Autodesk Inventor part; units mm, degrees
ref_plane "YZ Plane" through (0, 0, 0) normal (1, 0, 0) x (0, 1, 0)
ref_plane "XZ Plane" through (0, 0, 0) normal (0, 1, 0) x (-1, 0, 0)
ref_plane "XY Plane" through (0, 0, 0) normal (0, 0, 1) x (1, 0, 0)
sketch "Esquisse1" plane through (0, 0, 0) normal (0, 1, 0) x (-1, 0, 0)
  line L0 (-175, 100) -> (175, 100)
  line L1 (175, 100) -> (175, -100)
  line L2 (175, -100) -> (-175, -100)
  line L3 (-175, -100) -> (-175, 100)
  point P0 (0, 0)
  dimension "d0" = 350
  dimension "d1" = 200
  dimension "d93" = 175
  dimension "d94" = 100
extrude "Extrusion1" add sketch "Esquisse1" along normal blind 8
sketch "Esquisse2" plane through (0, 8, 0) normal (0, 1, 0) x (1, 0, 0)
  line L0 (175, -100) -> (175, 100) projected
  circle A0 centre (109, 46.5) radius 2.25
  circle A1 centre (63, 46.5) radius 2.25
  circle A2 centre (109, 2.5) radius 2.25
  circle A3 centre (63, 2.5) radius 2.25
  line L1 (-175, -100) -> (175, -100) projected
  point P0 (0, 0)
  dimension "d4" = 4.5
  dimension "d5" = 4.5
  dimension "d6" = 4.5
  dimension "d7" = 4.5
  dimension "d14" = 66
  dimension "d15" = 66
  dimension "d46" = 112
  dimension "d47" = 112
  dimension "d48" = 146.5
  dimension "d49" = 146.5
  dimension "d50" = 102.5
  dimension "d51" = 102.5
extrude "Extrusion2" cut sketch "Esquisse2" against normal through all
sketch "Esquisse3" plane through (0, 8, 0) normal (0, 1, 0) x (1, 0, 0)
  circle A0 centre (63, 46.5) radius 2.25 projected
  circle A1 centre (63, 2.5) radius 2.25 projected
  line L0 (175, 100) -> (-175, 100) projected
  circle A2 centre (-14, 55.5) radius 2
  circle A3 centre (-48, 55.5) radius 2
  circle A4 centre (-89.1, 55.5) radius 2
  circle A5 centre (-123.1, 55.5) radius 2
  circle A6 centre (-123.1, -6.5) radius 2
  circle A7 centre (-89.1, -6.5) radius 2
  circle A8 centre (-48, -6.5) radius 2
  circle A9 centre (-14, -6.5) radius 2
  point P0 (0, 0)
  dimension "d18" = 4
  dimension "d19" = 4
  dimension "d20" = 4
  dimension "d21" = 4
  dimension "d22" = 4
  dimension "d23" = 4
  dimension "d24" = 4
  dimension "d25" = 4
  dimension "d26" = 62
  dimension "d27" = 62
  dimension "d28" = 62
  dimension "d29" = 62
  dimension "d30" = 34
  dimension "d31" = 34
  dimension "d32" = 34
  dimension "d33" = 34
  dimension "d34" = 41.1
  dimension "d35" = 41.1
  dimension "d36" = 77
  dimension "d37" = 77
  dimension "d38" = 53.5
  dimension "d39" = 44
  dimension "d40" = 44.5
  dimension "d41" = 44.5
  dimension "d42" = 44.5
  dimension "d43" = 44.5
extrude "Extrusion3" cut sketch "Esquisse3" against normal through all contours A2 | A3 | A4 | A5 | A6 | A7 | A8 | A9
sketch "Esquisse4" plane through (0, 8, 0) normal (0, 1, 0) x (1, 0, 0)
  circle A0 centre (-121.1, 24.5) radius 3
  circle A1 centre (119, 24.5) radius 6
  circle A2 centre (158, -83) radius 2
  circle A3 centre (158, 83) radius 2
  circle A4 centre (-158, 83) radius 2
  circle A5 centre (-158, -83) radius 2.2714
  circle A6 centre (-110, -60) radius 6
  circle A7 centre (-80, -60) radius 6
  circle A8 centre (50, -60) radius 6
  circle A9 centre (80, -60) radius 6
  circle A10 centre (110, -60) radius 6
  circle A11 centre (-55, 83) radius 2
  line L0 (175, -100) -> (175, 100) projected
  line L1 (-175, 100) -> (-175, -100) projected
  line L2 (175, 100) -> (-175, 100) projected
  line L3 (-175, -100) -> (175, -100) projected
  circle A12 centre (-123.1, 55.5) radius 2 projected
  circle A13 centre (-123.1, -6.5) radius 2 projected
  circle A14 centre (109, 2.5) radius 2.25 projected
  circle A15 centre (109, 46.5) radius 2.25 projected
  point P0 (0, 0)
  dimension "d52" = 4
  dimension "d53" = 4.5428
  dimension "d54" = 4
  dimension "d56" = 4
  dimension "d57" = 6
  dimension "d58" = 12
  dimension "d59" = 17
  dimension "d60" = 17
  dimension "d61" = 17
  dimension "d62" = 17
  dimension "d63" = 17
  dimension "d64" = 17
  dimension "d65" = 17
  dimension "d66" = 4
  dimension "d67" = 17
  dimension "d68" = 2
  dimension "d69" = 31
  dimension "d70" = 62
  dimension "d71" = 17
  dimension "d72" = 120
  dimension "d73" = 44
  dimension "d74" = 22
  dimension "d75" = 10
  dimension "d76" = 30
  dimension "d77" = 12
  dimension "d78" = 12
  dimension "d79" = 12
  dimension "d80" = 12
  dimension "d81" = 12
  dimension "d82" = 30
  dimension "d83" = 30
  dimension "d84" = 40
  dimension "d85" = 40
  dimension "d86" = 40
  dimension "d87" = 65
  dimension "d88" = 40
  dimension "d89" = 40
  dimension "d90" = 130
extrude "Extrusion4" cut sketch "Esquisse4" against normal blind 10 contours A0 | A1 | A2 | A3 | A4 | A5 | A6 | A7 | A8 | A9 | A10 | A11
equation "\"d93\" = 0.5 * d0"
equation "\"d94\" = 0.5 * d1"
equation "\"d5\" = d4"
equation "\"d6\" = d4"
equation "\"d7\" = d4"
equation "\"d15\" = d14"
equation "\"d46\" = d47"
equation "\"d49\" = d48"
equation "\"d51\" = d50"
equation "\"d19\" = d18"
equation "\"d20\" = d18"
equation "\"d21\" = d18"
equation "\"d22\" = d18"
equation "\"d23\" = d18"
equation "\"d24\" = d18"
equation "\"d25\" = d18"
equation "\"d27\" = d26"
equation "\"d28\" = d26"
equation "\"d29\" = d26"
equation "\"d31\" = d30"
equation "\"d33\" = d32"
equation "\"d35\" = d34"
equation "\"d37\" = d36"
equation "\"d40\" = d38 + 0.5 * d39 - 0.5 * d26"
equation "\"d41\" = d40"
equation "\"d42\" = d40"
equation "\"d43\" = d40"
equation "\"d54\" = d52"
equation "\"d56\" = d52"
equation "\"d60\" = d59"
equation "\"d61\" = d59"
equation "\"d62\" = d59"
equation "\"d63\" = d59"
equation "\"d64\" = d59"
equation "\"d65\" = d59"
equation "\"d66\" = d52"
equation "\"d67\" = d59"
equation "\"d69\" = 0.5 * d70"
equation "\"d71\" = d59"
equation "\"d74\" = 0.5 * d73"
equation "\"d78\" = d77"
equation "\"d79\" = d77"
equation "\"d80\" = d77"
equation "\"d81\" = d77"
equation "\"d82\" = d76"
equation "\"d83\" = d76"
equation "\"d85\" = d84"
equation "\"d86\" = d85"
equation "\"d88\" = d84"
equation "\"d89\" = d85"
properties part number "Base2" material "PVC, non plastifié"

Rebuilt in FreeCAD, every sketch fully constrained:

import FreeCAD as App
import Part
import Sketcher
Q = App.Units.Quantity


def add_polygon(sketch, points):
    """Adds a closed chain of lines whose ends are joined by coincident constraints."""
    first, n = sketch.GeometryCount, len(points)
    for a, b in zip(points, points[1:] + points[:1]):
        sketch.addGeometry(Part.LineSegment(App.Vector(*a, 0), App.Vector(*b, 0)), False)
    for i in range(n):
        sketch.addConstraint(Sketcher.Constraint("Coincident", first + i, 2, first + (i + 1) % n, 1))

doc = App.newDocument("Part")
body = doc.addObject("PartDesign::Body", "Body")

# Sketch on XZ plane
sketch1 = body.newObject("Sketcher::SketchObject", "Sketch")
sketch1.AttachmentSupport = (doc.getObject("XZ_Plane"), [""])
sketch1.MapMode = "FlatFace"
add_polygon(sketch1, [(-175, 100), (175, 100), (175, -100), (-175, -100)])  # lines 0-3
sketch1.addConstraint([
    Sketcher.Constraint("Horizontal", 0),
    Sketcher.Constraint("Vertical", 1),
    Sketcher.Constraint("Horizontal", 2),
    Sketcher.Constraint("Vertical", 3),
    Sketcher.Constraint("Symmetric", 0, 2, 2, 2, -1, 1),
    Sketcher.Constraint("DistanceX", 0, 1, 0, 2, Q("350 mm")),
    Sketcher.Constraint("DistanceY", 1, 2, 1, 1, Q("200 mm")),
])
pad1 = body.newObject("PartDesign::Pad", "Pad")
pad1.Profile = sketch1
pad1.Length = 8
pad1.Reversed = True

# Sketch on XZ plane
sketch2 = body.newObject("Sketcher::SketchObject", "Sketch001")
sketch2.AttachmentSupport = (doc.getObject("XZ_Plane"), [""])
sketch2.MapMode = "FlatFace"
sketch2.AttachmentOffset = App.Placement(App.Vector(0, 0, -8), App.Rotation())
sketch2.addGeometry([
    Part.Circle(App.Vector(109, -46.5, 0), App.Vector(0, 0, 1), 2.25),
    Part.Circle(App.Vector(63, -46.5, 0), App.Vector(0, 0, 1), 2.25),
    Part.Circle(App.Vector(109, -2.5, 0), App.Vector(0, 0, 1), 2.25),
    Part.Circle(App.Vector(63, -2.5, 0), App.Vector(0, 0, 1), 2.25),
], False)
sketch2.addConstraint([
    Sketcher.Constraint("Equal", 0, 1),
    Sketcher.Constraint("Equal", 1, 2),
    Sketcher.Constraint("Equal", 2, 3),
    Sketcher.Constraint("Horizontal", 0, 3, 1, 3),
    Sketcher.Constraint("Horizontal", 2, 3, 3, 3),
    Sketcher.Constraint("Vertical", 0, 3, 2, 3),
    Sketcher.Constraint("Vertical", 1, 3, 3, 3),
    Sketcher.Constraint("Diameter", 0, Q("4.5 mm")),
    Sketcher.Constraint("DistanceX", -1, 1, 0, 3, Q("109 mm")),
    Sketcher.Constraint("DistanceX", -1, 1, 1, 3, Q("63 mm")),
    Sketcher.Constraint("DistanceY", 0, 3, 2, 3, Q("44 mm")),
    Sketcher.Constraint("DistanceY", 0, 3, -1, 1, Q("46.5 mm")),
])
pocket1 = body.newObject("PartDesign::Pocket", "Pocket")
pocket1.Profile = sketch2
pocket1.Type = "ThroughAll"
pocket1.Reversed = True

# Sketch on XZ plane
sketch3 = body.newObject("Sketcher::SketchObject", "Sketch002")
sketch3.AttachmentSupport = (doc.getObject("XZ_Plane"), [""])
sketch3.MapMode = "FlatFace"
sketch3.AttachmentOffset = App.Placement(App.Vector(0, 0, -8), App.Rotation())
sketch3.addGeometry([
    Part.Circle(App.Vector(-14, -55.5, 0), App.Vector(0, 0, 1), 2),  # 0
    Part.Circle(App.Vector(-48, -55.5, 0), App.Vector(0, 0, 1), 2),  # 1
    Part.Circle(App.Vector(-89.1, -55.5, 0), App.Vector(0, 0, 1), 2),  # 2
    Part.Circle(App.Vector(-123.1, -55.5, 0), App.Vector(0, 0, 1), 2),  # 3
    Part.Circle(App.Vector(-123.1, 6.5, 0), App.Vector(0, 0, 1), 2),  # 4
    Part.Circle(App.Vector(-89.1, 6.5, 0), App.Vector(0, 0, 1), 2),  # 5
    Part.Circle(App.Vector(-48, 6.5, 0), App.Vector(0, 0, 1), 2),  # 6
    Part.Circle(App.Vector(-14, 6.5, 0), App.Vector(0, 0, 1), 2),  # 7
], False)
sketch3.addConstraint([
    Sketcher.Constraint("Equal", 0, 1),
    Sketcher.Constraint("Equal", 1, 2),
    Sketcher.Constraint("Equal", 2, 3),
    Sketcher.Constraint("Equal", 3, 4),
    Sketcher.Constraint("Equal", 4, 5),
    Sketcher.Constraint("Equal", 5, 6),
    Sketcher.Constraint("Equal", 6, 7),
    Sketcher.Constraint("Horizontal", 0, 3, 1, 3),
    Sketcher.Constraint("Horizontal", 1, 3, 2, 3),
    Sketcher.Constraint("Horizontal", 2, 3, 3, 3),
    Sketcher.Constraint("Horizontal", 4, 3, 5, 3),
    Sketcher.Constraint("Horizontal", 5, 3, 6, 3),
    Sketcher.Constraint("Horizontal", 6, 3, 7, 3),
    Sketcher.Constraint("Vertical", 3, 3, 4, 3),
    Sketcher.Constraint("Vertical", 2, 3, 5, 3),
    Sketcher.Constraint("Vertical", 1, 3, 6, 3),
    Sketcher.Constraint("Vertical", 0, 3, 7, 3),
    Sketcher.Constraint("Diameter", 0, Q("4 mm")),
    Sketcher.Constraint("DistanceX", 1, 3, 0, 3, Q("34 mm")),
    Sketcher.Constraint("DistanceX", 3, 3, 2, 3, Q("34 mm")),
    Sketcher.Constraint("DistanceY", 3, 3, 4, 3, Q("62 mm")),
    Sketcher.Constraint("DistanceX", 2, 3, 1, 3, Q("41.1 mm")),
    Sketcher.Constraint("DistanceX", 0, 3, -1, 1, Q("14 mm")),
    Sketcher.Constraint("DistanceY", 0, 3, -1, 1, Q("55.5 mm")),
])
pocket2 = body.newObject("PartDesign::Pocket", "Pocket001")
pocket2.Profile = sketch3
pocket2.Type = "ThroughAll"
pocket2.Reversed = True

# Sketch on XZ plane
sketch4 = body.newObject("Sketcher::SketchObject", "Sketch003")
sketch4.AttachmentSupport = (doc.getObject("XZ_Plane"), [""])
sketch4.MapMode = "FlatFace"
sketch4.AttachmentOffset = App.Placement(App.Vector(0, 0, -8), App.Rotation())
sketch4.addGeometry([
    Part.Circle(App.Vector(-121.1, -24.5, 0), App.Vector(0, 0, 1), 3),  # 0
    Part.Circle(App.Vector(119, -24.5, 0), App.Vector(0, 0, 1), 6),  # 1
    Part.Circle(App.Vector(158, 83, 0), App.Vector(0, 0, 1), 2),  # 2
    Part.Circle(App.Vector(158, -83, 0), App.Vector(0, 0, 1), 2),  # 3
    Part.Circle(App.Vector(-158, -83, 0), App.Vector(0, 0, 1), 2),  # 4
    Part.Circle(App.Vector(-158, 83, 0), App.Vector(0, 0, 1), 2.2714),  # 5
    Part.Circle(App.Vector(-110, 60, 0), App.Vector(0, 0, 1), 6),  # 6
    Part.Circle(App.Vector(-80, 60, 0), App.Vector(0, 0, 1), 6),  # 7
    Part.Circle(App.Vector(50, 60, 0), App.Vector(0, 0, 1), 6),  # 8
    Part.Circle(App.Vector(80, 60, 0), App.Vector(0, 0, 1), 6),  # 9
    Part.Circle(App.Vector(110, 60, 0), App.Vector(0, 0, 1), 6),  # 10
    Part.Circle(App.Vector(-55, -83, 0), App.Vector(0, 0, 1), 2),  # 11
], False)
sketch4.addConstraint([
    Sketcher.Constraint("Equal", 2, 3),
    Sketcher.Constraint("Equal", 3, 4),
    Sketcher.Constraint("Equal", 1, 6),
    Sketcher.Constraint("Equal", 6, 7),
    Sketcher.Constraint("Equal", 7, 8),
    Sketcher.Constraint("Equal", 8, 9),
    Sketcher.Constraint("Equal", 9, 10),
    Sketcher.Constraint("Equal", 4, 11),
    Sketcher.Constraint("Symmetric", 2, 3, 4, 3, -1, 1),
    Sketcher.Constraint("Symmetric", 3, 3, 5, 3, -1, 1),
    Sketcher.Constraint("Symmetric", 3, 3, 4, 3, -2),
    Sketcher.Constraint("Symmetric", 7, 3, 9, 3, -2),
    Sketcher.Constraint("Symmetric", 6, 3, 10, 3, -2),
    Sketcher.Constraint("Horizontal", 0, 3, 1, 3),
    Sketcher.Constraint("Horizontal", 6, 3, 7, 3),
    Sketcher.Constraint("Horizontal", 7, 3, 8, 3),
    Sketcher.Constraint("Horizontal", 4, 3, 11, 3),
    Sketcher.Constraint("Diameter", 0, Q("6 mm")),
    Sketcher.Constraint("Diameter", 1, Q("12 mm")),
    Sketcher.Constraint("Diameter", 2, Q("4 mm")),
    Sketcher.Constraint("DistanceX", 6, 3, 7, 3, Q("30 mm")),
    Sketcher.Constraint("DistanceX", 7, 3, 8, 3, Q("130 mm")),
    Sketcher.Constraint("DistanceX", 8, 3, 9, 3, Q("30 mm")),
    Sketcher.Constraint("Diameter", 5, Q("4.5428 mm")),
    Sketcher.Constraint("DistanceX", -1, 1, 1, 3, Q("119 mm")),
    Sketcher.Constraint("DistanceX", -1, 1, 2, 3, Q("158 mm")),
    Sketcher.Constraint("DistanceY", -1, 1, 2, 3, Q("83 mm")),
    Sketcher.Constraint("DistanceY", -1, 1, 6, 3, Q("60 mm")),
    Sketcher.Constraint("DistanceX", 11, 3, -1, 1, Q("55 mm")),
    Sketcher.Constraint("DistanceX", 0, 3, -1, 1, Q("121.1 mm")),
    Sketcher.Constraint("DistanceY", 0, 3, -1, 1, Q("24.5 mm")),
])
pocket3 = body.newObject("PartDesign::Pocket", "Pocket002")
pocket3.Profile = sketch4
pocket3.Length = 10
pocket3.Reversed = True

doc.recompute()
